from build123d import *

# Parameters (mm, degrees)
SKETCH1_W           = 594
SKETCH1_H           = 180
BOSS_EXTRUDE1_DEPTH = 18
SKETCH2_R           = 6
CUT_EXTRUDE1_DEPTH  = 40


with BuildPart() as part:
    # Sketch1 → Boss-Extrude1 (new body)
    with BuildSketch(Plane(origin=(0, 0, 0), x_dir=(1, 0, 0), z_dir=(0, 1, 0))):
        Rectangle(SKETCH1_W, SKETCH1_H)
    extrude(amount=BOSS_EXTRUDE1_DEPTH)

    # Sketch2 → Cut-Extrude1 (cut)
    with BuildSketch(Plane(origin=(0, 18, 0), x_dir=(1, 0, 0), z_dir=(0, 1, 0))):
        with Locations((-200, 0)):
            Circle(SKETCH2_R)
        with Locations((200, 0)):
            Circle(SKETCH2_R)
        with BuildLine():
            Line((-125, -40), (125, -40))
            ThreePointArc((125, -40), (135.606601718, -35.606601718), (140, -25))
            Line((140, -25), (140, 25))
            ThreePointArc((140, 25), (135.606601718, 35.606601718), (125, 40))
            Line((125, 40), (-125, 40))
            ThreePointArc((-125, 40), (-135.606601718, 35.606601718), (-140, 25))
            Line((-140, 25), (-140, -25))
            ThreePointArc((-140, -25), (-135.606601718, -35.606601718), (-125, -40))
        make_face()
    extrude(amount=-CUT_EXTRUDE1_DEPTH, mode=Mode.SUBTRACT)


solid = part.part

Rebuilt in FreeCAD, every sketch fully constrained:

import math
import FreeCAD as App
import Part
import Sketcher
Q = App.Units.Quantity

doc = App.newDocument("Part")
body = doc.addObject("PartDesign::Body", "Body")

# Sketch on XZ plane
sketch1 = body.newObject("Sketcher::SketchObject", "Sketch")
sketch1.AttachmentSupport = (doc.getObject("XZ_Plane"), [""])
sketch1.MapMode = "FlatFace"
sketch1.addGeometry(Part.LineSegment(App.Vector(-297, -90, 0), App.Vector(-297, 90, 0)), False)
sketch1.addGeometry(Part.LineSegment(App.Vector(-297, 90, 0), App.Vector(297, 90, 0)), False)
sketch1.addGeometry(Part.LineSegment(App.Vector(297, 90, 0), App.Vector(297, -90, 0)), False)
sketch1.addGeometry(Part.LineSegment(App.Vector(297, -90, 0), App.Vector(-297, -90, 0)), False)
sketch1.addConstraint(Sketcher.Constraint("Coincident", 0, 2, 1, 1))
sketch1.addConstraint(Sketcher.Constraint("Coincident", 1, 2, 2, 1))
sketch1.addConstraint(Sketcher.Constraint("Coincident", 2, 2, 3, 1))
sketch1.addConstraint(Sketcher.Constraint("Coincident", 3, 2, 0, 1))
sketch1.addConstraint(Sketcher.Constraint("Vertical", 0))
sketch1.addConstraint(Sketcher.Constraint("Horizontal", 1))
sketch1.addConstraint(Sketcher.Constraint("Vertical", 2))
sketch1.addConstraint(Sketcher.Constraint("Horizontal", 3))
sketch1.addConstraint(Sketcher.Constraint("Symmetric", 0, 2, 2, 2, -1, 1))
sketch1.addConstraint(Sketcher.Constraint("DistanceX", 1, 1, 1, 2, Q("594 mm")))
sketch1.addConstraint(Sketcher.Constraint("DistanceY", 0, 1, 0, 2, Q("180 mm")))
pad1 = body.newObject("PartDesign::Pad", "Pad")
pad1.Profile = sketch1
pad1.Length = 18
pad1.Reversed = True

# Sketch on XZ plane
sketch2 = body.newObject("Sketcher::SketchObject", "Sketch001")
sketch2.AttachmentSupport = (doc.getObject("XZ_Plane"), [""])
sketch2.MapMode = "FlatFace"
sketch2.AttachmentOffset = App.Placement(App.Vector(0, 0, -18), App.Rotation())
sketch2.addGeometry(Part.Circle(App.Vector(-200, 0, 0), App.Vector(0, 0, 1), 6), False)
sketch2.addGeometry(Part.Circle(App.Vector(200, 0, 0), App.Vector(0, 0, 1), 6), False)
sketch2.addGeometry(Part.LineSegment(App.Vector(-125, 40, 0), App.Vector(125, 40, 0)), False)
sketch2.addGeometry(Part.ArcOfCircle(Part.Circle(App.Vector(125, 25, 0), App.Vector(0, 0, 1), 15), math.radians(0), math.radians(90)), False)
sketch2.addGeometry(Part.LineSegment(App.Vector(140, 25, 0), App.Vector(140, -25, 0)), False)
sketch2.addGeometry(Part.ArcOfCircle(Part.Circle(App.Vector(125, -25, 0), App.Vector(0, 0, 1), 15), math.radians(-90), math.radians(0)), False)
sketch2.addGeometry(Part.LineSegment(App.Vector(125, -40, 0), App.Vector(-125, -40, 0)), False)
sketch2.addGeometry(Part.ArcOfCircle(Part.Circle(App.Vector(-125, -25, 0), App.Vector(0, 0, 1), 15), math.radians(180), math.radians(270)), False)
sketch2.addGeometry(Part.LineSegment(App.Vector(-140, -25, 0), App.Vector(-140, 25, 0)), False)
sketch2.addGeometry(Part.ArcOfCircle(Part.Circle(App.Vector(-125, 25, 0), App.Vector(0, 0, 1), 15), math.radians(90), math.radians(180)), False)
sketch2.addConstraint(Sketcher.Constraint("Tangent", 2, 2, 3, 2))
sketch2.addConstraint(Sketcher.Constraint("Tangent", 3, 1, 4, 1))
sketch2.addConstraint(Sketcher.Constraint("Tangent", 4, 2, 5, 2))
sketch2.addConstraint(Sketcher.Constraint("Tangent", 5, 1, 6, 1))
sketch2.addConstraint(Sketcher.Constraint("Tangent", 6, 2, 7, 2))
sketch2.addConstraint(Sketcher.Constraint("Tangent", 7, 1, 8, 1))
sketch2.addConstraint(Sketcher.Constraint("Tangent", 8, 2, 9, 2))
sketch2.addConstraint(Sketcher.Constraint("Tangent", 9, 1, 2, 1))
sketch2.addConstraint(Sketcher.Constraint("Horizontal", 2))
sketch2.addConstraint(Sketcher.Constraint("Vertical", 4))
sketch2.addConstraint(Sketcher.Constraint("Horizontal", 6))
sketch2.addConstraint(Sketcher.Constraint("Vertical", 8))
sketch2.addConstraint(Sketcher.Constraint("Equal", 0, 1))
sketch2.addConstraint(Sketcher.Constraint("Equal", 3, 5))
sketch2.addConstraint(Sketcher.Constraint("Equal", 5, 7))
sketch2.addConstraint(Sketcher.Constraint("Equal", 7, 9))
sketch2.addConstraint(Sketcher.Constraint("Symmetric", 0, 3, 1, 3, -1, 1))
sketch2.addConstraint(Sketcher.Constraint("Symmetric", 3, 3, 7, 3, -1, 1))
sketch2.addConstraint(Sketcher.Constraint("PointOnObject", 0, 3, -1))
sketch2.addConstraint(Sketcher.Constraint("Diameter", 0, Q("12 mm")))
sketch2.addConstraint(Sketcher.Constraint("Radius", 3, Q("15 mm")))
sketch2.addConstraint(Sketcher.Constraint("DistanceX", 2, 1, 2, 2, Q("250 mm")))
sketch2.addConstraint(Sketcher.Constraint("DistanceY", 4, 2, 4, 1, Q("50 mm")))
sketch2.addConstraint(Sketcher.Constraint("DistanceX", 0, 3, -1, 1, Q("200 mm")))
pocket1 = body.newObject("PartDesign::Pocket", "Pocket")
pocket1.Profile = sketch2
pocket1.Length = 40
pocket1.Reversed = True

doc.recompute()
